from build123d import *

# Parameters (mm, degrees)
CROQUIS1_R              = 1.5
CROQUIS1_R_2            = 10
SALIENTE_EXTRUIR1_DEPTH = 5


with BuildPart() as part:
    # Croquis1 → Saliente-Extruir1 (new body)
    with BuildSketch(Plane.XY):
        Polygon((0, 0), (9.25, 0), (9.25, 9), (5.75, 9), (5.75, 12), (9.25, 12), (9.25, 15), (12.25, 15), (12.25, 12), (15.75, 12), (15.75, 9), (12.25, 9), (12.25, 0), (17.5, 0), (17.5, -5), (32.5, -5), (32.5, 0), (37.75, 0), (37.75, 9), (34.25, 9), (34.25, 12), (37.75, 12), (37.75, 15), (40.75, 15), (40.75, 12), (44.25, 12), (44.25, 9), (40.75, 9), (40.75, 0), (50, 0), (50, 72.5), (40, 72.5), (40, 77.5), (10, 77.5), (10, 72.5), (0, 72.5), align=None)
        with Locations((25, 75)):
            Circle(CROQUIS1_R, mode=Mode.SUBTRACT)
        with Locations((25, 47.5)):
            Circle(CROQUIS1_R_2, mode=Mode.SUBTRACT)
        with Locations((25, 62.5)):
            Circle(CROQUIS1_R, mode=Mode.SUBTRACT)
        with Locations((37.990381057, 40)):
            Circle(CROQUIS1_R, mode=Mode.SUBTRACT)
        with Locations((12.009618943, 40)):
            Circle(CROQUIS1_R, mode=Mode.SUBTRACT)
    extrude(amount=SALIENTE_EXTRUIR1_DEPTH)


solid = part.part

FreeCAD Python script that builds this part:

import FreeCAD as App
import Part
import Sketcher

V = App.Vector


def add_polygon(sketch, points):
    """Adds a closed chain of lines whose ends are joined by coincident constraints."""
    first, n = sketch.GeometryCount, len(points)
    for a, b in zip(points, points[1:] + points[:1]):
        sketch.addGeometry(Part.LineSegment(App.Vector(*a, 0), App.Vector(*b, 0)), False)
    for i in range(n):
        sketch.addConstraint(Sketcher.Constraint("Coincident", first + i, 2, first + (i + 1) % n, 1))

doc = App.newDocument("Part")
body = doc.addObject("PartDesign::Body", "Body")

# Sketch on XY plane
sketch1 = doc.addObject("Sketcher::SketchObject", "Sketch")
body.addObject(sketch1)
sketch1.AttachmentSupport = (doc.XY_Plane, [""])
sketch1.MapMode = "FlatFace"
add_polygon(sketch1, [(0, 0), (9.2, 0), (9.2, 9), (5.8, 9), (5.8, 12), (9.2, 12), (9.2, 15), (12.2, 15), (12.2, 12), (15.8, 12), (15.8, 9), (12.2, 9), (12.2, 0), (17.5, 0), (17.5, -5), (32.5, -5), (32.5, 0), (37.8, 0), (37.8, 9), (34.2, 9), (34.2, 12), (37.8, 12), (37.8, 15), (40.8, 15), (40.8, 12), (44.2, 12), (44.2, 9), (40.8, 9), (40.8, 0), (50, 0), (50, 72.5), (40, 72.5), (40, 77.5), (10, 77.5), (10, 72.5), (0, 72.5)])  # lines 0-35
sketch1.addGeometry(Part.Circle(V(12, 40, 0), V(0, 0, 1), 1.5), False)  # 36
sketch1.addGeometry(Part.Circle(V(25, 47.5, 0), V(0, 0, 1), 10), False)  # 37
sketch1.addGeometry(Part.Circle(V(38, 40, 0), V(0, 0, 1), 1.5), False)  # 38
sketch1.addGeometry(Part.Circle(V(25, 62.5, 0), V(0, 0, 1), 1.5), False)  # 39
sketch1.addGeometry(Part.Circle(V(25, 75, 0), V(0, 0, 1), 1.5), False)  # 40
sketch1.addConstraint([
    Sketcher.Constraint("Horizontal", 0),
    Sketcher.Constraint("Vertical", 1),
    Sketcher.Constraint("Horizontal", 2),
    Sketcher.Constraint("Vertical", 3),
    Sketcher.Constraint("Horizontal", 4),
    Sketcher.Constraint("Vertical", 5),
    Sketcher.Constraint("Horizontal", 6),
    Sketcher.Constraint("Vertical", 7),
    Sketcher.Constraint("Horizontal", 8),
    Sketcher.Constraint("Vertical", 9),
    Sketcher.Constraint("Horizontal", 10),
    Sketcher.Constraint("Vertical", 11),
    Sketcher.Constraint("Horizontal", 12),
    Sketcher.Constraint("Vertical", 13),
    Sketcher.Constraint("Horizontal", 14),
    Sketcher.Constraint("Vertical", 15),
    Sketcher.Constraint("Horizontal", 16),
    Sketcher.Constraint("Vertical", 17),
    Sketcher.Constraint("Horizontal", 18),
    Sketcher.Constraint("Vertical", 19),
    Sketcher.Constraint("Horizontal", 20),
    Sketcher.Constraint("Vertical", 21),
    Sketcher.Constraint("Horizontal", 22),
    Sketcher.Constraint("Vertical", 23),
    Sketcher.Constraint("Horizontal", 24),
    Sketcher.Constraint("Vertical", 25),
    Sketcher.Constraint("Horizontal", 26),
    Sketcher.Constraint("Vertical", 27),
    Sketcher.Constraint("Horizontal", 28),
    Sketcher.Constraint("Vertical", 29),
    Sketcher.Constraint("Horizontal", 30),
    Sketcher.Constraint("Vertical", 31),
    Sketcher.Constraint("Horizontal", 32),
    Sketcher.Constraint("Vertical", 33),
    Sketcher.Constraint("Horizontal", 34),
    Sketcher.Constraint("Vertical", 35),
    Sketcher.Constraint("Coincident", 35, 2, -1, 1),
    Sketcher.Constraint("Equal", 36, 38),
    Sketcher.Constraint("Equal", 38, 39),
    Sketcher.Constraint("Equal", 39, 40),
    Sketcher.Constraint("PointOnObject", 11, 2, -1),
    Sketcher.Constraint("PointOnObject", 15, 2, -1),
    Sketcher.Constraint("PointOnObject", 27, 2, -1),
    Sketcher.Constraint("Horizontal", 36, 3, 38, 3),
    Sketcher.Constraint("Horizontal", 4, 2, 7, 2),
    Sketcher.Constraint("Horizontal", 2, 2, 9, 2),
    Sketcher.Constraint("Horizontal", 10, 2, 17, 2),
    Sketcher.Constraint("Horizontal", 8, 2, 19, 2),
    Sketcher.Constraint("Horizontal", 6, 2, 21, 2),
    Sketcher.Constraint("Horizontal", 20, 2, 23, 2),
    Sketcher.Constraint("Horizontal", 18, 2, 25, 2),
    Sketcher.Constraint("Horizontal", 30, 2, 33, 2),
    Sketcher.Constraint("Vertical", 37, 3, 39, 3),
    Sketcher.Constraint("Vertical", 39, 3, 40, 3),
    Sketcher.Constraint("Vertical", 1, 2, 4, 2),
    Sketcher.Constraint("Vertical", 7, 2, 10, 2),
    Sketcher.Constraint("Vertical", 17, 2, 20, 2),
    Sketcher.Constraint("Vertical", 23, 2, 26, 2),
    Sketcher.Constraint("Equal", 4, 8),
    Sketcher.Constraint("Equal", 12, 16),
    Sketcher.Constraint("Equal", 10, 18),
    Sketcher.Constraint("Equal", 6, 22),
    Sketcher.Constraint("Equal", 20, 24),
    Sketcher.Constraint("Equal", 0, 28),
    Sketcher.Constraint("Equal", 30, 34),
    Sketcher.Constraint("Equal", 22, 3),
    Sketcher.Constraint("Equal", 3, 5),
    Sketcher.Constraint("Equal", 15, 31),
    Sketcher.Constraint("Diameter", 36, 3.0),
    Sketcher.Constraint("Diameter", 37, 20.0),
    Sketcher.Constraint("DistanceX", 6, 1, 6, 2, 3.0),
    Sketcher.Constraint("DistanceX", 14, 1, 14, 2, 15.0),
    Sketcher.Constraint("DistanceX", 30, 2, 30, 1, 10.0),
    Sketcher.Constraint("DistanceX", 32, 2, 32, 1, 30.0),
    Sketcher.Constraint("DistanceY", 1, 1, 1, 2, 9.0),
    Sketcher.Constraint("DistanceY", 13, 2, 13, 1, 5.0),
    Sketcher.Constraint("DistanceX", 2, 2, 2, 1, 3.5),
    Sketcher.Constraint("DistanceY", 29, 1, 29, 2, 72.5),
    Sketcher.Constraint("DistanceY", -1, 1, 36, 3, 40.0),
    Sketcher.Constraint("DistanceX", -1, 1, 37, 3, 25.0),
    Sketcher.Constraint("DistanceY", -1, 1, 40, 3, 75.0),
    Sketcher.Constraint("DistanceY", 37, 3, 39, 3, 15.0),
    Sketcher.Constraint("DistanceX", 9, 2, 16, 2, 22.0),
    Sketcher.Constraint("DistanceY", 39, 3, 29, 2, 10.0),
    Sketcher.Constraint("DistanceX", -1, 1, 36, 3, 12.009619),
    Sketcher.Constraint("DistanceX", -1, 1, 38, 3, 37.990381),
])
pad1 = doc.addObject("PartDesign::Pad", "Pad")
body.addObject(pad1)
pad1.Profile = sketch1
pad1.Length = 5

doc.recompute()
